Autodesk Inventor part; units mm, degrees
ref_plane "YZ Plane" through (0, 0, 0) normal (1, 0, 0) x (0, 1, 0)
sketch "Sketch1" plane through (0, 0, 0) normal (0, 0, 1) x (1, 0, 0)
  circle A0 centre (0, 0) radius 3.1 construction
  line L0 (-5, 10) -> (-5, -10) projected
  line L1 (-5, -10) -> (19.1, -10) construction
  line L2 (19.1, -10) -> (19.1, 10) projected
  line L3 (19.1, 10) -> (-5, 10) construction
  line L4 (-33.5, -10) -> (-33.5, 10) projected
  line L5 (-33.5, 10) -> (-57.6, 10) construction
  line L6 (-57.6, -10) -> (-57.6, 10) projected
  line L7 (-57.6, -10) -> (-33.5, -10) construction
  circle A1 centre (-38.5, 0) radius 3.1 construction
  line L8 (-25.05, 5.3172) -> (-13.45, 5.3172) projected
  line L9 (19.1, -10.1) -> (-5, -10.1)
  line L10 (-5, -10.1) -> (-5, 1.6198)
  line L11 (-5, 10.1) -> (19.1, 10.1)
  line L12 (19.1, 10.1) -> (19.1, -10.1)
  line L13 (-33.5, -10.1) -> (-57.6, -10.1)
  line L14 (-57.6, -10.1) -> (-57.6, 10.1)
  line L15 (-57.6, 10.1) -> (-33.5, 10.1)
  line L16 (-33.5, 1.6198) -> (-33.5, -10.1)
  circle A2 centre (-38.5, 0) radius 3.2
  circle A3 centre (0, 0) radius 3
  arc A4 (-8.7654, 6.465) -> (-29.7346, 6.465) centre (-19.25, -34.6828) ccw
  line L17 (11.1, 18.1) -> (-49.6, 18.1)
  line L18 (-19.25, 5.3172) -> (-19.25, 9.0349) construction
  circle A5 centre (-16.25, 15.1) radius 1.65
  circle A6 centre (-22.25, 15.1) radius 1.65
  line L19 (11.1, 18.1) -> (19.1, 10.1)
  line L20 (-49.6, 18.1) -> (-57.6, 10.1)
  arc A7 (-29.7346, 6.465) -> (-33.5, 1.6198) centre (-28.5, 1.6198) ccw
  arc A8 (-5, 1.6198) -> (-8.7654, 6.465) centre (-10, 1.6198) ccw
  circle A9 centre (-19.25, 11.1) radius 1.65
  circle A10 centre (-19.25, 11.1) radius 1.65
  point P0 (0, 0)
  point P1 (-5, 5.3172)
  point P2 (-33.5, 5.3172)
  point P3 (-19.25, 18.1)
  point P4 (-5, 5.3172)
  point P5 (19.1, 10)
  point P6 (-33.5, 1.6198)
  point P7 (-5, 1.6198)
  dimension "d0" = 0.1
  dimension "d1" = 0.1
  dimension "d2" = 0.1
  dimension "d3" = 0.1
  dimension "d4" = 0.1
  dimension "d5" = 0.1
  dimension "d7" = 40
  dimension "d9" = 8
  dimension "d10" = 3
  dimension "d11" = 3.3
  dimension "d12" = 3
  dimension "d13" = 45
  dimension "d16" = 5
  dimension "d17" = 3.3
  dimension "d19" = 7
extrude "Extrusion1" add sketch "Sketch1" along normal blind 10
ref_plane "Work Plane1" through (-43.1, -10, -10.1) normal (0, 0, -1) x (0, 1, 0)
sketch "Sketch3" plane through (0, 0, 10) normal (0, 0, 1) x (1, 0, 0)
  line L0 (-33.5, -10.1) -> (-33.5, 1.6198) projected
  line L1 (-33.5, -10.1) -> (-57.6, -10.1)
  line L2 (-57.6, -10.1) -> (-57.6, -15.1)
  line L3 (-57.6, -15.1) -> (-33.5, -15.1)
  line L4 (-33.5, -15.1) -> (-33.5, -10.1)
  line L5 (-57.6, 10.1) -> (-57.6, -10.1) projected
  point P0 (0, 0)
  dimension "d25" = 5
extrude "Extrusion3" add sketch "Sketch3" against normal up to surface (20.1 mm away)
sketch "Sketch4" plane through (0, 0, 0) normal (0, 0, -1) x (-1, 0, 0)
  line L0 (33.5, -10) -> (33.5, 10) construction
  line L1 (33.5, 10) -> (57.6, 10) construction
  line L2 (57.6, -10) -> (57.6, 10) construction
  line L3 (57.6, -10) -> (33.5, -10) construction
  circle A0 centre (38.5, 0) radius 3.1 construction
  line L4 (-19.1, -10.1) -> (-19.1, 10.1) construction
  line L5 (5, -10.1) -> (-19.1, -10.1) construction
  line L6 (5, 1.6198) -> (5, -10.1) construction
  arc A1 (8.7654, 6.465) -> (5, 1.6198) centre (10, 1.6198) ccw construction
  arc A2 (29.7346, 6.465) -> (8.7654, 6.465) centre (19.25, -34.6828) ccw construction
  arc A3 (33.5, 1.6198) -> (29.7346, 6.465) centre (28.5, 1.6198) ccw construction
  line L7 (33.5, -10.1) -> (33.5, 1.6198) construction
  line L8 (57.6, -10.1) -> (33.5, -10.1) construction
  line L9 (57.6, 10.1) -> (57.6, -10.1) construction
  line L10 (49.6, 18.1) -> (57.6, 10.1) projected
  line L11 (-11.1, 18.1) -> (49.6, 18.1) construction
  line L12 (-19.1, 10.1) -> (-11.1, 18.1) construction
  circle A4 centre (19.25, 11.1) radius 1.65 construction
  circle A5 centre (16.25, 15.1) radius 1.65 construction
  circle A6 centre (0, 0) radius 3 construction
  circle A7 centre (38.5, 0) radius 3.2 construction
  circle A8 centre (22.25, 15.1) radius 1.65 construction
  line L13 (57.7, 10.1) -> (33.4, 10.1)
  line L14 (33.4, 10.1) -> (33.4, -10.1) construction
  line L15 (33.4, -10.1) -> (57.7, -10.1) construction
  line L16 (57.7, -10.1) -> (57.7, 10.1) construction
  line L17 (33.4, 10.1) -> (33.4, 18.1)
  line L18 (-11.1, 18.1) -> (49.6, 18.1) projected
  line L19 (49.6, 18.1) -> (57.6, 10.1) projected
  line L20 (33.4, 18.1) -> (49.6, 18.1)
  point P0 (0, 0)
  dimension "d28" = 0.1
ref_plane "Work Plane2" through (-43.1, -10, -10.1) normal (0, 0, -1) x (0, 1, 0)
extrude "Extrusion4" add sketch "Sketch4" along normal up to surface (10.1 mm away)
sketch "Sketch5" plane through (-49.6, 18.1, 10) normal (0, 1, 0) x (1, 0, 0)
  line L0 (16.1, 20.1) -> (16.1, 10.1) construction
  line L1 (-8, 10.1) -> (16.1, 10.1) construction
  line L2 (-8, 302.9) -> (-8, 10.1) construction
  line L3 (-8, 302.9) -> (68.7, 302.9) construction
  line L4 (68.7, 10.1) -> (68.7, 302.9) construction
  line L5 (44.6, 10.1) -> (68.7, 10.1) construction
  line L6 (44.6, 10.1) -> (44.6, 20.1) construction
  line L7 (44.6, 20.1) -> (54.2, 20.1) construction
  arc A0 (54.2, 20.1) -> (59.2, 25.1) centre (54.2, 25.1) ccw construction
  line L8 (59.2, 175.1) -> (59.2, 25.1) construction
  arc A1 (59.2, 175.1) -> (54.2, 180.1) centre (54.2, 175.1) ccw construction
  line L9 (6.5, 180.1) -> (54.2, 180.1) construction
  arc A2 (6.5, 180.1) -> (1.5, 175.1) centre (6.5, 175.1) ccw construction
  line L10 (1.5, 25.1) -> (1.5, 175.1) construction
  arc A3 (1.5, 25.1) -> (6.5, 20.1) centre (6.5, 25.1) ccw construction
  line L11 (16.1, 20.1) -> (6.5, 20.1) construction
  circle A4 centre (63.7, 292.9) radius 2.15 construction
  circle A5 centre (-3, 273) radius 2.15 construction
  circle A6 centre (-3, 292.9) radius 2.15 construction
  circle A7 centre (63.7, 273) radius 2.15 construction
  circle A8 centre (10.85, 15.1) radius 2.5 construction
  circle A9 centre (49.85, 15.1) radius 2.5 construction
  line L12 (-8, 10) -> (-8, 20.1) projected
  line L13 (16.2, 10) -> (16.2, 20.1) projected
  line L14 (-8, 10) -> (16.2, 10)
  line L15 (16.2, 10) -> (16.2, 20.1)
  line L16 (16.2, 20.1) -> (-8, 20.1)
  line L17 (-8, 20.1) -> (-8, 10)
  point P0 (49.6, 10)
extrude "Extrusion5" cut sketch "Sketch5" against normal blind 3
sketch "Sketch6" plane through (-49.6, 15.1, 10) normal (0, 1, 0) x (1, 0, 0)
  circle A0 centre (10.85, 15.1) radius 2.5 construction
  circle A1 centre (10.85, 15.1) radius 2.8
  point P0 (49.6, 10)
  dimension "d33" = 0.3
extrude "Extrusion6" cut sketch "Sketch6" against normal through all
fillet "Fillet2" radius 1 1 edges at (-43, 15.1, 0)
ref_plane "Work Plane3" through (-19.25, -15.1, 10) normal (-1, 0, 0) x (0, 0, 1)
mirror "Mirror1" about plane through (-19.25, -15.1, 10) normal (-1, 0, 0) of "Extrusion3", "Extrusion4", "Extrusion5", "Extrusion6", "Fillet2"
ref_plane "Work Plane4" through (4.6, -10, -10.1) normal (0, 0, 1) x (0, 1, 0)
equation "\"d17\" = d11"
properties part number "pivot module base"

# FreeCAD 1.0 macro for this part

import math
import FreeCAD as App
import Part
import Sketcher
from FreeCAD import Vector
Q = App.Units.Quantity


def edges_at(feature, points):
    """Names of the edges that pass closest to the given points."""
    edges = feature.Shape.Edges
    near = lambda p: min(range(len(edges)), key=lambda i: edges[i].distToShape(Part.Vertex(*p))[0])
    return sorted({f"Edge{near(p) + 1}" for p in points})


def add_polygon(sketch, points):
    """Adds a closed chain of lines whose ends are joined by coincident constraints."""
    first, n = sketch.GeometryCount, len(points)
    for a, b in zip(points, points[1:] + points[:1]):
        sketch.addGeometry(Part.LineSegment(App.Vector(*a, 0), App.Vector(*b, 0)), False)
    for i in range(n):
        sketch.addConstraint(Sketcher.Constraint("Coincident", first + i, 2, first + (i + 1) % n, 1))

doc = App.newDocument("Part")
body = doc.addObject("PartDesign::Body", "Body")

# Sketch on XY plane
sketch1 = body.newObject("Sketcher::SketchObject", "Sketch")
sketch1.AttachmentSupport = (doc.getObject("XY_Plane"), [""])
sketch1.MapMode = "FlatFace"
sketch1.addGeometry([
    Part.ArcOfCircle(Part.Circle(Vector(-10, 1.6, 0), Vector(0, 0, 1), 5), math.radians(0), math.radians(76)),  # 0
    Part.LineSegment(Vector(-5, 1.6, 0), Vector(-5, -10.1, 0)),  # 1
    Part.LineSegment(Vector(-5, -10.1, 0), Vector(19.1, -10.1, 0)),  # 2
    Part.LineSegment(Vector(19.1, -10.1, 0), Vector(19.1, 10.1, 0)),  # 3
    Part.LineSegment(Vector(19.1, 10.1, 0), Vector(11.1, 18.1, 0)),  # 4
    Part.LineSegment(Vector(11.1, 18.1, 0), Vector(-49.6, 18.1, 0)),  # 5
    Part.LineSegment(Vector(-49.6, 18.1, 0), Vector(-57.6, 10.1, 0)),  # 6
    Part.LineSegment(Vector(-57.6, 10.1, 0), Vector(-57.6, -10.1, 0)),  # 7
    Part.LineSegment(Vector(-57.6, -10.1, 0), Vector(-33.5, -10.1, 0)),  # 8
    Part.LineSegment(Vector(-33.5, -10.1, 0), Vector(-33.5, 1.6, 0)),  # 9
    Part.ArcOfCircle(Part.Circle(Vector(-28.5, 1.6, 0), Vector(0, 0, 1), 5), math.radians(104), math.radians(180)),  # 10
    Part.ArcOfCircle(Part.Circle(Vector(-19.2, -34.7, 0), Vector(0, 0, 1), 42.5), math.radians(76), math.radians(104)),  # 11
    Part.Circle(Vector(-38.5, 0, 0), Vector(0, 0, 1), 3.2),  # 12
    Part.Circle(Vector(0, 0, 0), Vector(0, 0, 1), 3),  # 13
    Part.Circle(Vector(-19.2, 11.1, 0), Vector(0, 0, 1), 1.6),  # 14
    Part.Circle(Vector(-22.2, 15.1, 0), Vector(0, 0, 1), 1.6),  # 15
    Part.Circle(Vector(-16.2, 15.1, 0), Vector(0, 0, 1), 1.6),  # 16
], False)
sketch1.addConstraint([
    Sketcher.Constraint("Tangent", 0, 1, 1, 1),
    Sketcher.Constraint("Coincident", 1, 2, 2, 1),
    Sketcher.Constraint("Coincident", 2, 2, 3, 1),
    Sketcher.Constraint("Coincident", 3, 2, 4, 1),
    Sketcher.Constraint("Coincident", 4, 2, 5, 1),
    Sketcher.Constraint("Coincident", 5, 2, 6, 1),
    Sketcher.Constraint("Coincident", 6, 2, 7, 1),
    Sketcher.Constraint("Coincident", 7, 2, 8, 1),
    Sketcher.Constraint("Coincident", 8, 2, 9, 1),
    Sketcher.Constraint("Tangent", 9, 2, 10, 2),
    Sketcher.Constraint("Tangent", 10, 1, 11, 2),
    Sketcher.Constraint("Tangent", 11, 1, 0, 2),
    Sketcher.Constraint("Vertical", 1),
    Sketcher.Constraint("Horizontal", 2),
    Sketcher.Constraint("Vertical", 3),
    Sketcher.Constraint("Horizontal", 5),
    Sketcher.Constraint("Vertical", 7),
    Sketcher.Constraint("Horizontal", 8),
    Sketcher.Constraint("Vertical", 9),
    Sketcher.Constraint("Coincident", 13, 3, -1, 1),
    Sketcher.Constraint("Equal", 0, 10),
    Sketcher.Constraint("Equal", 14, 15),
    Sketcher.Constraint("Equal", 15, 16),
    Sketcher.Constraint("PointOnObject", 12, 3, -1),
    Sketcher.Constraint("Perpendicular", 4, 6),
    Sketcher.Constraint("Horizontal", 0, 3, 10, 3),
    Sketcher.Constraint("Horizontal", 15, 3, 16, 3),
    Sketcher.Constraint("Horizontal", 3, 2, 6, 2),
    Sketcher.Constraint("Horizontal", 2, 2, 7, 2),
    Sketcher.Constraint("Vertical", 11, 3, 14, 3),
    Sketcher.Constraint("Equal", 2, 8),
    Sketcher.Constraint("Equal", 4, 6),
    Sketcher.Constraint("Diameter", 13, Q("6 mm")),
    Sketcher.Constraint("Radius", 0, Q("5 mm")),
    Sketcher.Constraint("Diameter", 14, Q("3.3 mm")),
    Sketcher.Constraint("DistanceX", 0, 1, -1, 1, Q("5 mm")),
    Sketcher.Constraint("DistanceX", 15, 3, 14, 3, Q("3 mm")),
    Sketcher.Constraint("DistanceX", 14, 3, 16, 3, Q("3 mm")),
    Sketcher.Constraint("DistanceX", 4, 2, 3, 2, Q("8 mm")),
    Sketcher.Constraint("DistanceY", 16, 3, 4, 2, Q("3 mm")),
    Sketcher.Constraint("DistanceY", 14, 3, 5, 2, Q("7 mm")),
    Sketcher.Constraint("DistanceX", 12, 3, 8, 2, Q("5 mm")),
    Sketcher.Constraint("Diameter", 12, Q("6.4 mm")),
    Sketcher.Constraint("DistanceX", 2, 1, 2, 2, Q("24.1 mm")),
    Sketcher.Constraint("DistanceX", 5, 2, 5, 1, Q("60.7 mm")),
    Sketcher.Constraint("DistanceY", 3, 1, 3, 2, Q("20.2 mm")),
    Sketcher.Constraint("DistanceY", -1, 1, 14, 3, Q("11.1 mm")),
    Sketcher.Constraint("Radius", 11, Q("42.4626 mm")),
    Sketcher.Constraint("DistanceY", 1, 2, 1, 1, Q("11.7198 mm")),
])
pad1 = body.newObject("PartDesign::Pad", "Pad")
pad1.Profile = sketch1
pad1.Length = 10

# Sketch on XY plane
sketch2 = body.newObject("Sketcher::SketchObject", "Sketch001")
sketch2.AttachmentSupport = (doc.getObject("XY_Plane"), [""])
sketch2.MapMode = "FlatFace"
sketch2.AttachmentOffset = App.Placement(Vector(0, 0, 10), App.Rotation())
add_polygon(sketch2, [(-34, -15), (-34, -10), (-58, -10), (-58, -15)])  # lines 0-3
sketch2.addConstraint([
    Sketcher.Constraint("Vertical", 0),
    Sketcher.Constraint("Horizontal", 1),
    Sketcher.Constraint("Vertical", 2),
    Sketcher.Constraint("Horizontal", 3),
    Sketcher.Constraint("DistanceY", 0, 1, 0, 2, Q("5 mm")),
    Sketcher.Constraint("DistanceX", 1, 2, 1, 1, Q("24.1 mm")),
    Sketcher.Constraint("DistanceX", 0, 2, -1, 1, Q("33.5 mm")),
    Sketcher.Constraint("DistanceY", 0, 2, -1, 1, Q("10.1 mm")),
])
pad2 = body.newObject("PartDesign::Pad", "Pad001")
pad2.Profile = sketch2
pad2.Length = 20.1
pad2.Reversed = True

# Sketch on XY plane
sketch3 = body.newObject("Sketcher::SketchObject", "Sketch002")
sketch3.AttachmentSupport = (doc.getObject("XY_Plane"), [""])
sketch3.MapMode = "FlatFace"
add_polygon(sketch3, [(-58, 10), (-50, 18), (-33, 18), (-33, 10)])  # lines 0-3
sketch3.addConstraint([
    Sketcher.Constraint("Horizontal", 1),
    Sketcher.Constraint("Vertical", 2),
    Sketcher.Constraint("Horizontal", 3),
    Sketcher.Constraint("DistanceY", 2, 2, 2, 1, Q("8 mm")),
    Sketcher.Constraint("Angle", 0, Q("45 deg")),
    Sketcher.Constraint("DistanceX", 1, 1, 1, 2, Q("16.2 mm")),
    Sketcher.Constraint("DistanceX", 0, 2, -1, 1, Q("49.6 mm")),
    Sketcher.Constraint("DistanceY", -1, 1, 0, 2, Q("18.1 mm")),
])
pad3 = body.newObject("PartDesign::Pad", "Pad002")
pad3.Profile = sketch3
pad3.Length = 10.1
pad3.Reversed = True

# Sketch on XZ plane
sketch4 = body.newObject("Sketcher::SketchObject", "Sketch003")
sketch4.AttachmentSupport = (doc.getObject("XZ_Plane"), [""])
sketch4.MapMode = "FlatFace"
sketch4.AttachmentOffset = App.Placement(Vector(0, 0, -18.1), App.Rotation())
add_polygon(sketch4, [(-58, -10), (-58, 0), (-33, 0), (-33, -10)])  # lines 0-3
sketch4.addConstraint([
    Sketcher.Constraint("Vertical", 0),
    Sketcher.Constraint("Horizontal", 1),
    Sketcher.Constraint("Vertical", 2),
    Sketcher.Constraint("Horizontal", 3),
    Sketcher.Constraint("PointOnObject", 0, 2, -1),
    Sketcher.Constraint("DistanceX", 1, 1, 1, 2, Q("24.2 mm")),
    Sketcher.Constraint("DistanceY", 0, 1, 0, 2, Q("10.1 mm")),
    Sketcher.Constraint("DistanceX", 0, 2, -1, 1, Q("57.6 mm")),
])
pocket1 = body.newObject("PartDesign::Pocket", "Pocket")
pocket1.Profile = sketch4
pocket1.Length = 3
pocket1.Reversed = True

# Sketch on XZ plane
sketch5 = body.newObject("Sketcher::SketchObject", "Sketch004")
sketch5.AttachmentSupport = (doc.getObject("XZ_Plane"), [""])
sketch5.MapMode = "FlatFace"
sketch5.AttachmentOffset = App.Placement(Vector(0, 0, -15.1), App.Rotation())
sketch5.addGeometry(Part.Circle(Vector(-38.8, -5.1, 0), Vector(0, 0, 1), 2.8), False)
sketch5.addConstraint([
    Sketcher.Constraint("Diameter", 0, Q("5.6 mm")),
    Sketcher.Constraint("DistanceY", 0, 3, -1, 1, Q("5.1 mm")),
    Sketcher.Constraint("DistanceX", 0, 3, -1, 1, Q("38.75 mm")),
])
pocket2 = body.newObject("PartDesign::Pocket", "Pocket001")
pocket2.Profile = sketch5
pocket2.Type = "ThroughAll"
pocket2.Reversed = True
doc.recompute()

fillet = body.newObject("PartDesign::Fillet", "Fillet")
fillet.Base = (pocket2, edges_at(pocket2, [(-43, 15.1, 0)]))
fillet.Radius = 1
doc.recompute()

datumplane = body.newObject("PartDesign::Plane", "DatumPlane")
datumplane.AttachmentSupport = (doc.getObject("YZ_Plane"), [""])
datumplane.MapMode = "FlatFace"
datumplane.AttachmentOffset = App.Placement(Vector(0, 0, -19.25), App.Rotation())
mirrored = body.newObject("PartDesign::Mirrored", "Mirrored")
mirrored.Originals = [pad2, pad3, pocket1, pocket2, fillet]
mirrored.MirrorPlane = (datumplane, [""])
body.Tip = mirrored

doc.recompute()
